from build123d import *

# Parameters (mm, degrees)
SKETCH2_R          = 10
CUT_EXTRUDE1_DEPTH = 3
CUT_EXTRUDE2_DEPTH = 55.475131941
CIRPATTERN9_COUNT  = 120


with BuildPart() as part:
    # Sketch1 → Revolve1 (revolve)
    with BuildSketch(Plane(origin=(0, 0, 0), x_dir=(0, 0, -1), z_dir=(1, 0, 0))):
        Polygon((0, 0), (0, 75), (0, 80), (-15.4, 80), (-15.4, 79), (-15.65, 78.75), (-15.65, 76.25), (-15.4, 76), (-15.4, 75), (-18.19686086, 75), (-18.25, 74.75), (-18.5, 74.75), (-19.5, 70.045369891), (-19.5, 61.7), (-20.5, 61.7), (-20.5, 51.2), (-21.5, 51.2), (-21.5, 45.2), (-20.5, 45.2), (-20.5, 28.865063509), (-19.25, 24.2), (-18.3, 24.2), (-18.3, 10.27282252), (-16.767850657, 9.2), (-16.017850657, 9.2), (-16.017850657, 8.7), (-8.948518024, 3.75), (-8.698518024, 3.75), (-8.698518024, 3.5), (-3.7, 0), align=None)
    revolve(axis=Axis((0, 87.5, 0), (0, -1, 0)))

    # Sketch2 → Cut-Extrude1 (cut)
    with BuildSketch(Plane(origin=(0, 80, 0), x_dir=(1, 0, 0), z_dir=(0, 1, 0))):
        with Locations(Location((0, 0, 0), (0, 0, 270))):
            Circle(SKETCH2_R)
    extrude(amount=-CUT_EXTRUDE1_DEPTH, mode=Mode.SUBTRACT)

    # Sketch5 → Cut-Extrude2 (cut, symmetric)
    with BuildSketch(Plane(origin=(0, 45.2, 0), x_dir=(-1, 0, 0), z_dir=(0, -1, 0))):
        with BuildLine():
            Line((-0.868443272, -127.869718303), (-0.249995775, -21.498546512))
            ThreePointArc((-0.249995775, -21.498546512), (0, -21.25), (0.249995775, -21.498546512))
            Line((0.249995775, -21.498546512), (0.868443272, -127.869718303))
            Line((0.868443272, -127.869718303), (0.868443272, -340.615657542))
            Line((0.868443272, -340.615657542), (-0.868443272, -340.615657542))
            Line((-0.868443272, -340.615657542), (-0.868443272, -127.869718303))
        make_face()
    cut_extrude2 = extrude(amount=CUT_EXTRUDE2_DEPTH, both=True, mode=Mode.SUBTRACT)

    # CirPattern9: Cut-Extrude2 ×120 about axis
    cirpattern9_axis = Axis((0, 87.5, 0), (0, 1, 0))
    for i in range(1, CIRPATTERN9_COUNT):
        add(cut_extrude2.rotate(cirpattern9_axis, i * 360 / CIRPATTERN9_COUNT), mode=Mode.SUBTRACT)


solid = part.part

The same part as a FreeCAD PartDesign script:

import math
import FreeCAD as App
import Part
import Sketcher
Q = App.Units.Quantity

doc = App.newDocument("Part")
body = doc.addObject("PartDesign::Body", "Body")

# Sketch on YZ plane
sketch1 = body.newObject("Sketcher::SketchObject", "Sketch")
sketch1.AttachmentSupport = (doc.getObject("YZ_Plane"), [""])
sketch1.MapMode = "FlatFace"
sketch1.addGeometry([
    Part.LineSegment(App.Vector(0, 0, 0), App.Vector(80, 0, 0)),  # 0
    Part.LineSegment(App.Vector(80, 0, 0), App.Vector(80, 15.4, 0)),  # 1
    Part.LineSegment(App.Vector(80, 15.4, 0), App.Vector(79, 15.4, 0)),  # 2
    Part.LineSegment(App.Vector(79, 15.4, 0), App.Vector(78.75, 15.65, 0)),  # 3
    Part.LineSegment(App.Vector(78.75, 15.65, 0), App.Vector(76.25, 15.65, 0)),  # 4
    Part.LineSegment(App.Vector(76.25, 15.65, 0), App.Vector(76, 15.4, 0)),  # 5
    Part.LineSegment(App.Vector(76, 15.4, 0), App.Vector(75, 15.4, 0)),  # 6
    Part.LineSegment(App.Vector(75, 15.4, 0), App.Vector(75, 18.2, 0)),  # 7
    Part.LineSegment(App.Vector(75, 18.2, 0), App.Vector(74.75, 18.25, 0)),  # 8
    Part.LineSegment(App.Vector(74.75, 18.25, 0), App.Vector(74.75, 18.5, 0)),  # 9
    Part.LineSegment(App.Vector(74.75, 18.5, 0), App.Vector(70.05, 19.5, 0)),  # 10
    Part.LineSegment(App.Vector(70.05, 19.5, 0), App.Vector(61.7, 19.5, 0)),  # 11
    Part.LineSegment(App.Vector(61.7, 19.5, 0), App.Vector(61.7, 20.5, 0)),  # 12
    Part.LineSegment(App.Vector(61.7, 20.5, 0), App.Vector(51.2, 20.5, 0)),  # 13
    Part.LineSegment(App.Vector(51.2, 20.5, 0), App.Vector(51.2, 21.5, 0)),  # 14
    Part.LineSegment(App.Vector(51.2, 21.5, 0), App.Vector(45.2, 21.5, 0)),  # 15
    Part.LineSegment(App.Vector(45.2, 21.5, 0), App.Vector(45.2, 20.5, 0)),  # 16
    Part.LineSegment(App.Vector(45.2, 20.5, 0), App.Vector(28.87, 20.5, 0)),  # 17
    Part.LineSegment(App.Vector(28.87, 20.5, 0), App.Vector(24.2, 19.25, 0)),  # 18
    Part.LineSegment(App.Vector(24.2, 19.25, 0), App.Vector(24.2, 18.3, 0)),  # 19
    Part.LineSegment(App.Vector(24.2, 18.3, 0), App.Vector(10.27, 18.3, 0)),  # 20
    Part.LineSegment(App.Vector(10.27, 18.3, 0), App.Vector(9.2, 16.77, 0)),  # 21
    Part.LineSegment(App.Vector(9.2, 16.77, 0), App.Vector(9.2, 16.02, 0)),  # 22
    Part.LineSegment(App.Vector(9.2, 16.02, 0), App.Vector(8.7, 16.02, 0)),  # 23
    Part.LineSegment(App.Vector(8.7, 16.02, 0), App.Vector(3.75, 8.95, 0)),  # 24
    Part.LineSegment(App.Vector(3.75, 8.95, 0), App.Vector(3.75, 8.7, 0)),  # 25
    Part.LineSegment(App.Vector(3.75, 8.7, 0), App.Vector(3.5, 8.7, 0)),  # 26
    Part.LineSegment(App.Vector(3.5, 8.7, 0), App.Vector(0, 3.7, 0)),  # 27
    Part.LineSegment(App.Vector(0, 3.7, 0), App.Vector(0, 0, 0)),  # 28
], False)
sketch1.addConstraint([
    Sketcher.Constraint("Coincident", 0, 2, 1, 1),
    Sketcher.Constraint("Coincident", 1, 2, 2, 1),
    Sketcher.Constraint("Coincident", 2, 2, 3, 1),
    Sketcher.Constraint("Coincident", 3, 2, 4, 1),
    Sketcher.Constraint("Coincident", 4, 2, 5, 1),
    Sketcher.Constraint("Coincident", 5, 2, 6, 1),
    Sketcher.Constraint("Coincident", 6, 2, 7, 1),
    Sketcher.Constraint("Coincident", 7, 2, 8, 1),
    Sketcher.Constraint("Coincident", 8, 2, 9, 1),
    Sketcher.Constraint("Coincident", 9, 2, 10, 1),
    Sketcher.Constraint("Coincident", 10, 2, 11, 1),
    Sketcher.Constraint("Coincident", 11, 2, 12, 1),
    Sketcher.Constraint("Coincident", 12, 2, 13, 1),
    Sketcher.Constraint("Coincident", 13, 2, 14, 1),
    Sketcher.Constraint("Coincident", 14, 2, 15, 1),
    Sketcher.Constraint("Coincident", 15, 2, 16, 1),
    Sketcher.Constraint("Coincident", 16, 2, 17, 1),
    Sketcher.Constraint("Coincident", 17, 2, 18, 1),
    Sketcher.Constraint("Coincident", 18, 2, 19, 1),
    Sketcher.Constraint("Coincident", 19, 2, 20, 1),
    Sketcher.Constraint("Coincident", 20, 2, 21, 1),
    Sketcher.Constraint("Coincident", 21, 2, 22, 1),
    Sketcher.Constraint("Coincident", 22, 2, 23, 1),
    Sketcher.Constraint("Coincident", 23, 2, 24, 1),
    Sketcher.Constraint("Coincident", 24, 2, 25, 1),
    Sketcher.Constraint("Coincident", 25, 2, 26, 1),
    Sketcher.Constraint("Coincident", 26, 2, 27, 1),
    Sketcher.Constraint("Coincident", 27, 2, 28, 1),
    Sketcher.Constraint("Coincident", 28, 2, 0, 1),
    Sketcher.Constraint("Horizontal", 0),
    Sketcher.Constraint("Vertical", 1),
    Sketcher.Constraint("Horizontal", 2),
    Sketcher.Constraint("Horizontal", 4),
    Sketcher.Constraint("Horizontal", 6),
    Sketcher.Constraint("Vertical", 7),
    Sketcher.Constraint("Vertical", 9),
    Sketcher.Constraint("Horizontal", 11),
    Sketcher.Constraint("Vertical", 12),
    Sketcher.Constraint("Horizontal", 13),
    Sketcher.Constraint("Vertical", 14),
    Sketcher.Constraint("Horizontal", 15),
    Sketcher.Constraint("Vertical", 16),
    Sketcher.Constraint("Horizontal", 17),
    Sketcher.Constraint("Vertical", 19),
    Sketcher.Constraint("Horizontal", 20),
    Sketcher.Constraint("Vertical", 22),
    Sketcher.Constraint("Horizontal", 23),
    Sketcher.Constraint("Vertical", 25),
    Sketcher.Constraint("Horizontal", 26),
    Sketcher.Constraint("Vertical", 28),
    Sketcher.Constraint("Coincident", 28, 2, -1, 1),
    Sketcher.Constraint("Perpendicular", 3, 5),
    Sketcher.Constraint("Parallel", 8, 10),
    Sketcher.Constraint("Parallel", 21, 24),
    Sketcher.Constraint("Parallel", 24, 27),
    Sketcher.Constraint("Horizontal", 2, 2, 5, 2),
    Sketcher.Constraint("Horizontal", 13, 2, 16, 2),
    Sketcher.Constraint("Equal", 2, 6),
    Sketcher.Constraint("Equal", 26, 9),
    Sketcher.Constraint("Equal", 6, 12),
    Sketcher.Constraint("Equal", 12, 14),
    Sketcher.Constraint("Equal", 9, 25),
    Sketcher.Constraint("Equal", 3, 5),
    Sketcher.Constraint("DistanceX", 0, 1, 0, 2, 80.0),
    Sketcher.Constraint("DistanceX", 2, 2, 2, 1, 1.0),
    Sketcher.Constraint("DistanceX", 15, 2, 15, 1, 6.0),
    Sketcher.Constraint("Angle", 8, Q("168 deg")),
    Sketcher.Constraint("Angle", 18, Q("-165 deg")),
    Sketcher.Constraint("Angle", 21, Q("-125 deg")),
    Sketcher.Constraint("DistanceX", 4, 2, 4, 1, 2.5),
    Sketcher.Constraint("DistanceX", 13, 2, 13, 1, 10.5),
    Sketcher.Constraint("DistanceX", 23, 2, 23, 1, 0.5),
    Sketcher.Constraint("DistanceY", 1, 1, 1, 2, 15.4),
    Sketcher.Constraint("DistanceY", 28, 2, 28, 1, 3.7),
    Sketcher.Constraint("DistanceX", -1, 1, 5, 2, 76.0),
    Sketcher.Constraint("DistanceX", 8, 2, 3, 2, 4.0),
    Sketcher.Constraint("DistanceY", 9, 2, 10, 2, 1.0),
    Sketcher.Constraint("DistanceX", 18, 2, 16, 2, 21.0),
    Sketcher.Constraint("DistanceX", 21, 2, 19, 2, 15.0),
    Sketcher.Constraint("DistanceX", 26, 2, 26, 1, 0.25),
    Sketcher.Constraint("DistanceY", 19, 2, 19, 1, 0.95),
    Sketcher.Constraint("DistanceY", 22, 2, 22, 1, 0.75),
    Sketcher.Constraint("DistanceY", -1, 1, 9, 2, 18.5),
    Sketcher.Constraint("DistanceX", -1, 1, 11, 2, 61.7),
    Sketcher.Constraint("DistanceY", -1, 1, 19, 2, 18.3),
    Sketcher.Constraint("DistanceX", -1, 1, 26, 2, 3.5),
])
revolution = body.newObject("PartDesign::Revolution", "Revolution")
revolution.Profile = sketch1
revolution.ReferenceAxis = (sketch1, ["H_Axis"])
revolution.Angle = 360

# Sketch on XZ plane
sketch2 = body.newObject("Sketcher::SketchObject", "Sketch001")
sketch2.AttachmentSupport = (doc.getObject("XZ_Plane"), [""])
sketch2.MapMode = "FlatFace"
sketch2.AttachmentOffset = App.Placement(App.Vector(0, 0, -80), App.Rotation())
sketch2.addGeometry(Part.Circle(App.Vector(0, 0, 0), App.Vector(0, 0, 1), 10), False)
sketch2.addConstraint([
    Sketcher.Constraint("Coincident", 0, 3, -1, 1),
    Sketcher.Constraint("Diameter", 0, 20.0),
])
pocket1 = body.newObject("PartDesign::Pocket", "Pocket")
pocket1.Profile = sketch2
pocket1.Length = 3
pocket1.Reversed = True

# Sketch on XZ plane
sketch3 = body.newObject("Sketcher::SketchObject", "Sketch002")
sketch3.AttachmentSupport = (doc.getObject("XZ_Plane"), [""])
sketch3.MapMode = "FlatFace"
sketch3.AttachmentOffset = App.Placement(App.Vector(0, 0, -45.2), App.Rotation())
sketch3.addGeometry([
    Part.LineSegment(App.Vector(0.25, 21.5, 0), App.Vector(0.87, 127.87, 0)),  # 0
    Part.LineSegment(App.Vector(0.87, 127.87, 0), App.Vector(0.87, 340.62, 0)),  # 1
    Part.LineSegment(App.Vector(0.87, 340.62, 0), App.Vector(-0.87, 340.62, 0)),  # 2
    Part.LineSegment(App.Vector(-0.87, 340.62, 0), App.Vector(-0.87, 127.87, 0)),  # 3
    Part.LineSegment(App.Vector(-0.87, 127.87, 0), App.Vector(-0.25, 21.5, 0)),  # 4
    Part.ArcOfCircle(Part.Circle(App.Vector(0, 21.5, 0), App.Vector(0, 0, 1), 0.25), math.radians(-180), math.radians(0)),  # 5
], False)
sketch3.addConstraint([
    Sketcher.Constraint("Coincident", 0, 2, 1, 1),
    Sketcher.Constraint("Coincident", 1, 2, 2, 1),
    Sketcher.Constraint("Coincident", 2, 2, 3, 1),
    Sketcher.Constraint("Coincident", 3, 2, 4, 1),
    Sketcher.Constraint("Tangent", 4, 2, 5, 1),
    Sketcher.Constraint("Tangent", 5, 2, 0, 1),
    Sketcher.Constraint("Vertical", 1),
    Sketcher.Constraint("Horizontal", 2),
    Sketcher.Constraint("Vertical", 3),
    Sketcher.Constraint("Symmetric", 0, 2, 3, 2, -2),
    Sketcher.Constraint("PointOnObject", 5, 3, -2),
    Sketcher.Constraint("Radius", 5, 0.25),
    Sketcher.Constraint("DistanceY", -1, 1, 5, 3, 21.5),
    Sketcher.Constraint("DistanceY", 1, 1, 1, 2, 212.745939),
    Sketcher.Constraint("Distance", 0, 106.37297),
    Sketcher.Constraint("DistanceX", 2, 2, 2, 1, 1.736887),
])
pocket2 = body.newObject("PartDesign::Pocket", "Pocket001")
pocket2.Profile = sketch3
pocket2.Length = 110.950264
pocket2.Midplane = True
doc.recompute()

polarpattern = body.newObject("PartDesign::PolarPattern", "PolarPattern")
polarpattern.Originals = [pocket2]
polarpattern.Axis = (doc.getObject("Y_Axis"), [""])
polarpattern.Angle = 360
polarpattern.Occurrences = 120
body.Tip = polarpattern

doc.recompute()
